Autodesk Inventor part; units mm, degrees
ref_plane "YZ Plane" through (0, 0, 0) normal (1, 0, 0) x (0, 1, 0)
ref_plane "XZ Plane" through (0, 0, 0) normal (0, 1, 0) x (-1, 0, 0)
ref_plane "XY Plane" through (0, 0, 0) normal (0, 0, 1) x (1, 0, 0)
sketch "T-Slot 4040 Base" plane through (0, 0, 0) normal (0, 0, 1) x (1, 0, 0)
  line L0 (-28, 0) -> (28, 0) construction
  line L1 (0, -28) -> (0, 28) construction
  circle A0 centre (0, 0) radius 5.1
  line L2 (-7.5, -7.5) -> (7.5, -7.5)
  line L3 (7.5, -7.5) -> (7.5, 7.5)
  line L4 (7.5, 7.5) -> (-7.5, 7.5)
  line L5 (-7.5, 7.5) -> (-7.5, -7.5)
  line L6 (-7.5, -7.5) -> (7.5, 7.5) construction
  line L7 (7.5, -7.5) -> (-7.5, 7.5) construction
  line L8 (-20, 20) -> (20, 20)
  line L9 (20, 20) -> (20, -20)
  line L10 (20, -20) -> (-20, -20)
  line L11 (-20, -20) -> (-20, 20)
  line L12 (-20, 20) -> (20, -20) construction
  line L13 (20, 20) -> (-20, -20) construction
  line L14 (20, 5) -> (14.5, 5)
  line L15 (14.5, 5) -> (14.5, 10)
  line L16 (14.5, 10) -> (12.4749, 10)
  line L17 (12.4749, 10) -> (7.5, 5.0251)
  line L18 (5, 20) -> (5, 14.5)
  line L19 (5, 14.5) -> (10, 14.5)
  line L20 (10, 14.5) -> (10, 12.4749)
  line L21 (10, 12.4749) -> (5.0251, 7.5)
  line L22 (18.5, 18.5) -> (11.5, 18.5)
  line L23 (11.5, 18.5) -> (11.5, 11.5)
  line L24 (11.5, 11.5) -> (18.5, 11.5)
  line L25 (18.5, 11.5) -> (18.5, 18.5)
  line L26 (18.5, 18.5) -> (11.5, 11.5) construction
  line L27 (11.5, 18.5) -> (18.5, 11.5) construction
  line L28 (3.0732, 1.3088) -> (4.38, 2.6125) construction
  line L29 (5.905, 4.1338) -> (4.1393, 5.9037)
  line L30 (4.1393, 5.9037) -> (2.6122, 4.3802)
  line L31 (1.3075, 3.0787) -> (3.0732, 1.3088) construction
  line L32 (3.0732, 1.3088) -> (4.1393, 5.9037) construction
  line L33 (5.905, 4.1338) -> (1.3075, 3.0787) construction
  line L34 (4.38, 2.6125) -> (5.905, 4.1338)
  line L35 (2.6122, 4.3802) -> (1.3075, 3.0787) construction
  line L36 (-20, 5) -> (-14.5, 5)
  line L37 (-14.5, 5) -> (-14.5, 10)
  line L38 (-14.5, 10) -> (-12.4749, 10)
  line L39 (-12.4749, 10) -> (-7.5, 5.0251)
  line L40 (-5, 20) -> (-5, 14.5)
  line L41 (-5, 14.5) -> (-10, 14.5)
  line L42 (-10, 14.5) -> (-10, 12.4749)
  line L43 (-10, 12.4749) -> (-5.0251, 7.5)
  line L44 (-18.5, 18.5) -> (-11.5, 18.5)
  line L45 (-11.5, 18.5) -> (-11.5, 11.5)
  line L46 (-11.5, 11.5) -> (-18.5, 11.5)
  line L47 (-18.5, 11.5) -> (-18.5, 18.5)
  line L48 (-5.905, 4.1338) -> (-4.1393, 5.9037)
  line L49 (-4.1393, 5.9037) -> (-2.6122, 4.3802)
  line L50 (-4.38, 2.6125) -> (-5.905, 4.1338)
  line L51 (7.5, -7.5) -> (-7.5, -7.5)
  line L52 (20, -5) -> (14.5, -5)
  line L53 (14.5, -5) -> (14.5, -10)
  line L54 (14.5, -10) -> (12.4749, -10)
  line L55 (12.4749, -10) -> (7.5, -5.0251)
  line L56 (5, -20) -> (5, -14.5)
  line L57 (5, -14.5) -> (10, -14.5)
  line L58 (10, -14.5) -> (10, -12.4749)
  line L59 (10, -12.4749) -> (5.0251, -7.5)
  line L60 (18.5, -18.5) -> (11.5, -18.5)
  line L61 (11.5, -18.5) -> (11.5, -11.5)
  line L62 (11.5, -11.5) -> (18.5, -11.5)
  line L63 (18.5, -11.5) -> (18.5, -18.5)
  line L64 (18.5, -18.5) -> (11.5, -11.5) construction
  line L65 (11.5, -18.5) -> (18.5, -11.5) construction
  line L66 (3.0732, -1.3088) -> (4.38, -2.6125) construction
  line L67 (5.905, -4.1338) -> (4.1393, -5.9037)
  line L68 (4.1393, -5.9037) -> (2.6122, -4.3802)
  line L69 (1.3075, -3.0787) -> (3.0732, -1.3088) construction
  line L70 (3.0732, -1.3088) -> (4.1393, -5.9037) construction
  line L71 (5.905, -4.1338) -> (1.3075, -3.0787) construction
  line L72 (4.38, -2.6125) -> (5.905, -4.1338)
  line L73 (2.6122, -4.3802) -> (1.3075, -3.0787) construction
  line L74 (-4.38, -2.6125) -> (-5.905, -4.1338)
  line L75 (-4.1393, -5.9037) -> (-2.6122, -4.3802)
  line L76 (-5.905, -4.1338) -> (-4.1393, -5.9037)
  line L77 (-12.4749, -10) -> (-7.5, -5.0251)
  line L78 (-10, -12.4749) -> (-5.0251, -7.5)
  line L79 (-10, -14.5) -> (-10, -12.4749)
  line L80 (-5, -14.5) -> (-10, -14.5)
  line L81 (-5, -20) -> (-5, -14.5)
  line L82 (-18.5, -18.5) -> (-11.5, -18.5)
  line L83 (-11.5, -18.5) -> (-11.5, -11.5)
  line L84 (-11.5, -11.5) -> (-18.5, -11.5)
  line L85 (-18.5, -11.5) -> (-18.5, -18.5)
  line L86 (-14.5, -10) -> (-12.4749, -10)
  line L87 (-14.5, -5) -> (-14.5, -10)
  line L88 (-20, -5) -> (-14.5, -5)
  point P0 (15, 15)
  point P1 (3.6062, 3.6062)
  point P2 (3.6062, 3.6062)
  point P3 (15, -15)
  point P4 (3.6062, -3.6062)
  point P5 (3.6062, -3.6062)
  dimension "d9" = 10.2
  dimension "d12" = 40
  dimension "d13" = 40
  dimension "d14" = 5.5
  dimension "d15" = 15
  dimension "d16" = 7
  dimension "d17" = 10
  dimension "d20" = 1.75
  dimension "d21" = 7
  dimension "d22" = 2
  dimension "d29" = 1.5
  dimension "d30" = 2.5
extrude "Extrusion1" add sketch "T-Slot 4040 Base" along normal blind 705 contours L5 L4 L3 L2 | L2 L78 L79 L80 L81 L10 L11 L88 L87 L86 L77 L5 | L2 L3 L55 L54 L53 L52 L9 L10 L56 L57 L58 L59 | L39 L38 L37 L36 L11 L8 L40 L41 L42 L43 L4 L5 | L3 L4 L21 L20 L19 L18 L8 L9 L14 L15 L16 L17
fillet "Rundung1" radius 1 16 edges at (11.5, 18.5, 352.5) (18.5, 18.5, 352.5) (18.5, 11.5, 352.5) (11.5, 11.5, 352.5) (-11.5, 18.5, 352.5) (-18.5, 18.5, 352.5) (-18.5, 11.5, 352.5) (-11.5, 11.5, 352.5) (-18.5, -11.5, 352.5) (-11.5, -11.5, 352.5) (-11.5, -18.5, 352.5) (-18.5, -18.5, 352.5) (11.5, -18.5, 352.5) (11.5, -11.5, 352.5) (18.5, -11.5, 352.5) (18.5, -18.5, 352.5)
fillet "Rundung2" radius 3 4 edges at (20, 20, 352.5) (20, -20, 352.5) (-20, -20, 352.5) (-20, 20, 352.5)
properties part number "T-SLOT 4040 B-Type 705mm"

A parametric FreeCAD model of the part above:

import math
import FreeCAD as App
import Part
import Sketcher

V = App.Vector
Q = App.Units.Quantity


def edges_at(feature, points):
    """Names of the edges that pass closest to the given points."""
    edges = feature.Shape.Edges
    near = lambda p: min(range(len(edges)), key=lambda i: edges[i].distToShape(Part.Vertex(*p))[0])
    return sorted({f"Edge{near(p) + 1}" for p in points})

doc = App.newDocument("Part")
params = doc.addObject("Spreadsheet::Sheet", "Params")
for row, (alias, value) in enumerate([
    ("sketch1_radius", "5.1 mm"),
    ("sketch1_width", "15 mm"),
    ("sketch1_width2", "7 mm"),
    ("sketch1_width3", "5.5 mm"),
    ("sketch1_length", "2.5 mm"),
    ("pad1_length", "705 mm"),
    ("fillet_radius", "1 mm"),
    ("fillet2_radius", "3 mm"),
], start=1):
    params.set(f"A{row}", alias)
    params.set(f"B{row}", "=" + value)
    params.setAlias(f"B{row}", alias)

body = doc.addObject("PartDesign::Body", "Body")

# Sketch on XY plane
sketch1 = doc.addObject("Sketcher::SketchObject", "Sketch")
body.addObject(sketch1)
sketch1.AttachmentSupport = (doc.XY_Plane, [""])
sketch1.MapMode = "FlatFace"
sketch1.addGeometry(Part.LineSegment(V(-7.5, 5, 0), V(-7.5, -5, 0)), False)
sketch1.addGeometry(Part.LineSegment(V(-7.5, -5, 0), V(-12.5, -10, 0)), False)
sketch1.addGeometry(Part.LineSegment(V(-12.5, -10, 0), V(-14.5, -10, 0)), False)
sketch1.addGeometry(Part.LineSegment(V(-14.5, -10, 0), V(-14.5, -5, 0)), False)
sketch1.addGeometry(Part.LineSegment(V(-14.5, -5, 0), V(-20, -5, 0)), False)
sketch1.addGeometry(Part.LineSegment(V(-20, -5, 0), V(-20, -20, 0)), False)
sketch1.addGeometry(Part.LineSegment(V(-20, -20, 0), V(-5, -20, 0)), False)
sketch1.addGeometry(Part.LineSegment(V(-5, -20, 0), V(-5, -14.5, 0)), False)
sketch1.addGeometry(Part.LineSegment(V(-5, -14.5, 0), V(-10, -14.5, 0)), False)
sketch1.addGeometry(Part.LineSegment(V(-10, -14.5, 0), V(-10, -12.5, 0)), False)
sketch1.addGeometry(Part.LineSegment(V(-10, -12.5, 0), V(-5, -7.5, 0)), False)
sketch1.addGeometry(Part.LineSegment(V(-5, -7.5, 0), V(5, -7.5, 0)), False)
sketch1.addGeometry(Part.LineSegment(V(5, -7.5, 0), V(10, -12.5, 0)), False)
sketch1.addGeometry(Part.LineSegment(V(10, -12.5, 0), V(10, -14.5, 0)), False)
sketch1.addGeometry(Part.LineSegment(V(10, -14.5, 0), V(5, -14.5, 0)), False)
sketch1.addGeometry(Part.LineSegment(V(5, -14.5, 0), V(5, -20, 0)), False)
sketch1.addGeometry(Part.LineSegment(V(5, -20, 0), V(20, -20, 0)), False)
sketch1.addGeometry(Part.LineSegment(V(20, -20, 0), V(20, -5, 0)), False)
sketch1.addGeometry(Part.LineSegment(V(20, -5, 0), V(14.5, -5, 0)), False)
sketch1.addGeometry(Part.LineSegment(V(14.5, -5, 0), V(14.5, -10, 0)), False)
sketch1.addGeometry(Part.LineSegment(V(14.5, -10, 0), V(12.5, -10, 0)), False)
sketch1.addGeometry(Part.LineSegment(V(12.5, -10, 0), V(7.5, -5, 0)), False)
sketch1.addGeometry(Part.LineSegment(V(7.5, -5, 0), V(7.5, 5, 0)), False)
sketch1.addGeometry(Part.LineSegment(V(7.5, 5, 0), V(12.5, 10, 0)), False)
sketch1.addGeometry(Part.LineSegment(V(12.5, 10, 0), V(14.5, 10, 0)), False)
sketch1.addGeometry(Part.LineSegment(V(14.5, 10, 0), V(14.5, 5, 0)), False)
sketch1.addGeometry(Part.LineSegment(V(14.5, 5, 0), V(20, 5, 0)), False)
sketch1.addGeometry(Part.LineSegment(V(20, 5, 0), V(20, 20, 0)), False)
sketch1.addGeometry(Part.LineSegment(V(20, 20, 0), V(5, 20, 0)), False)
sketch1.addGeometry(Part.LineSegment(V(5, 20, 0), V(5, 14.5, 0)), False)
sketch1.addGeometry(Part.LineSegment(V(5, 14.5, 0), V(10, 14.5, 0)), False)
sketch1.addGeometry(Part.LineSegment(V(10, 14.5, 0), V(10, 12.5, 0)), False)
sketch1.addGeometry(Part.LineSegment(V(10, 12.5, 0), V(5, 7.5, 0)), False)
sketch1.addGeometry(Part.LineSegment(V(5, 7.5, 0), V(-5, 7.5, 0)), False)
sketch1.addGeometry(Part.LineSegment(V(-5, 7.5, 0), V(-10, 12.5, 0)), False)
sketch1.addGeometry(Part.LineSegment(V(-10, 12.5, 0), V(-10, 14.5, 0)), False)
sketch1.addGeometry(Part.LineSegment(V(-10, 14.5, 0), V(-5, 14.5, 0)), False)
sketch1.addGeometry(Part.LineSegment(V(-5, 14.5, 0), V(-5, 20, 0)), False)
sketch1.addGeometry(Part.LineSegment(V(-5, 20, 0), V(-20, 20, 0)), False)
sketch1.addGeometry(Part.LineSegment(V(-20, 20, 0), V(-20, 5, 0)), False)
sketch1.addGeometry(Part.LineSegment(V(-20, 5, 0), V(-14.5, 5, 0)), False)
sketch1.addGeometry(Part.LineSegment(V(-14.5, 5, 0), V(-14.5, 10, 0)), False)
sketch1.addGeometry(Part.LineSegment(V(-14.5, 10, 0), V(-12.5, 10, 0)), False)
sketch1.addGeometry(Part.LineSegment(V(-12.5, 10, 0), V(-7.5, 5, 0)), False)
sketch1.addGeometry(Part.ArcOfCircle(Part.Circle(V(0, 0, 0), V(0, 0, 1), 5.1), math.radians(-31), math.radians(31)), False)
sketch1.addGeometry(Part.LineSegment(V(4.4, -2.6, 0), V(5.9, -4.1, 0)), False)
sketch1.addGeometry(Part.LineSegment(V(5.9, -4.1, 0), V(4.1, -5.9, 0)), False)
sketch1.addGeometry(Part.LineSegment(V(4.1, -5.9, 0), V(2.6, -4.4, 0)), False)
sketch1.addGeometry(Part.ArcOfCircle(Part.Circle(V(0, 0, 0), V(0, 0, 1), 5.1), math.radians(-121), math.radians(-59)), False)
sketch1.addGeometry(Part.LineSegment(V(-2.6, -4.4, 0), V(-4.1, -5.9, 0)), False)
sketch1.addGeometry(Part.LineSegment(V(-4.1, -5.9, 0), V(-5.9, -4.1, 0)), False)
sketch1.addGeometry(Part.LineSegment(V(-5.9, -4.1, 0), V(-4.4, -2.6, 0)), False)
sketch1.addGeometry(Part.ArcOfCircle(Part.Circle(V(0, 0, 0), V(0, 0, 1), 5.1), math.radians(149), math.radians(211)), False)
sketch1.addGeometry(Part.LineSegment(V(-4.4, 2.6, 0), V(-5.9, 4.1, 0)), False)
sketch1.addGeometry(Part.LineSegment(V(-5.9, 4.1, 0), V(-4.1, 5.9, 0)), False)
sketch1.addGeometry(Part.LineSegment(V(-4.1, 5.9, 0), V(-2.6, 4.4, 0)), False)
sketch1.addGeometry(Part.ArcOfCircle(Part.Circle(V(0, 0, 0), V(0, 0, 1), 5.1), math.radians(59), math.radians(121)), False)
sketch1.addGeometry(Part.LineSegment(V(2.6, 4.4, 0), V(4.1, 5.9, 0)), False)
sketch1.addGeometry(Part.LineSegment(V(4.1, 5.9, 0), V(5.9, 4.1, 0)), False)
sketch1.addGeometry(Part.LineSegment(V(5.9, 4.1, 0), V(4.4, 2.6, 0)), False)
sketch1.addGeometry(Part.LineSegment(V(-18.5, -11.5, 0), V(-11.5, -11.5, 0)), False)
sketch1.addGeometry(Part.LineSegment(V(-11.5, -11.5, 0), V(-11.5, -18.5, 0)), False)
sketch1.addGeometry(Part.LineSegment(V(-11.5, -18.5, 0), V(-18.5, -18.5, 0)), False)
sketch1.addGeometry(Part.LineSegment(V(-18.5, -18.5, 0), V(-18.5, -11.5, 0)), False)
sketch1.addGeometry(Part.LineSegment(V(-11.5, 18.5, 0), V(-11.5, 11.5, 0)), False)
sketch1.addGeometry(Part.LineSegment(V(-11.5, 11.5, 0), V(-18.5, 11.5, 0)), False)
sketch1.addGeometry(Part.LineSegment(V(-18.5, 11.5, 0), V(-18.5, 18.5, 0)), False)
sketch1.addGeometry(Part.LineSegment(V(-18.5, 18.5, 0), V(-11.5, 18.5, 0)), False)
sketch1.addGeometry(Part.LineSegment(V(18.5, 11.5, 0), V(11.5, 11.5, 0)), False)
sketch1.addGeometry(Part.LineSegment(V(11.5, 11.5, 0), V(11.5, 18.5, 0)), False)
sketch1.addGeometry(Part.LineSegment(V(11.5, 18.5, 0), V(18.5, 18.5, 0)), False)
sketch1.addGeometry(Part.LineSegment(V(18.5, 18.5, 0), V(18.5, 11.5, 0)), False)
sketch1.addGeometry(Part.LineSegment(V(11.5, -18.5, 0), V(11.5, -11.5, 0)), False)
sketch1.addGeometry(Part.LineSegment(V(11.5, -11.5, 0), V(18.5, -11.5, 0)), False)
sketch1.addGeometry(Part.LineSegment(V(18.5, -11.5, 0), V(18.5, -18.5, 0)), False)
sketch1.addGeometry(Part.LineSegment(V(18.5, -18.5, 0), V(11.5, -18.5, 0)), False)
sketch1.addConstraint(Sketcher.Constraint("Coincident", 0, 2, 1, 1))
sketch1.addConstraint(Sketcher.Constraint("Coincident", 1, 2, 2, 1))
sketch1.addConstraint(Sketcher.Constraint("Coincident", 2, 2, 3, 1))
sketch1.addConstraint(Sketcher.Constraint("Coincident", 3, 2, 4, 1))
sketch1.addConstraint(Sketcher.Constraint("Coincident", 4, 2, 5, 1))
sketch1.addConstraint(Sketcher.Constraint("Coincident", 5, 2, 6, 1))
sketch1.addConstraint(Sketcher.Constraint("Coincident", 6, 2, 7, 1))
sketch1.addConstraint(Sketcher.Constraint("Coincident", 7, 2, 8, 1))
sketch1.addConstraint(Sketcher.Constraint("Coincident", 8, 2, 9, 1))
sketch1.addConstraint(Sketcher.Constraint("Coincident", 9, 2, 10, 1))
sketch1.addConstraint(Sketcher.Constraint("Coincident", 10, 2, 11, 1))
sketch1.addConstraint(Sketcher.Constraint("Coincident", 11, 2, 12, 1))
sketch1.addConstraint(Sketcher.Constraint("Coincident", 12, 2, 13, 1))
sketch1.addConstraint(Sketcher.Constraint("Coincident", 13, 2, 14, 1))
sketch1.addConstraint(Sketcher.Constraint("Coincident", 14, 2, 15, 1))
sketch1.addConstraint(Sketcher.Constraint("Coincident", 15, 2, 16, 1))
sketch1.addConstraint(Sketcher.Constraint("Coincident", 16, 2, 17, 1))
sketch1.addConstraint(Sketcher.Constraint("Coincident", 17, 2, 18, 1))
sketch1.addConstraint(Sketcher.Constraint("Coincident", 18, 2, 19, 1))
sketch1.addConstraint(Sketcher.Constraint("Coincident", 19, 2, 20, 1))
sketch1.addConstraint(Sketcher.Constraint("Coincident", 20, 2, 21, 1))
sketch1.addConstraint(Sketcher.Constraint("Coincident", 21, 2, 22, 1))
sketch1.addConstraint(Sketcher.Constraint("Coincident", 22, 2, 23, 1))
sketch1.addConstraint(Sketcher.Constraint("Coincident", 23, 2, 24, 1))
sketch1.addConstraint(Sketcher.Constraint("Coincident", 24, 2, 25, 1))
sketch1.addConstraint(Sketcher.Constraint("Coincident", 25, 2, 26, 1))
sketch1.addConstraint(Sketcher.Constraint("Coincident", 26, 2, 27, 1))
sketch1.addConstraint(Sketcher.Constraint("Coincident", 27, 2, 28, 1))
sketch1.addConstraint(Sketcher.Constraint("Coincident", 28, 2, 29, 1))
sketch1.addConstraint(Sketcher.Constraint("Coincident", 29, 2, 30, 1))
sketch1.addConstraint(Sketcher.Constraint("Coincident", 30, 2, 31, 1))
sketch1.addConstraint(Sketcher.Constraint("Coincident", 31, 2, 32, 1))
sketch1.addConstraint(Sketcher.Constraint("Coincident", 32, 2, 33, 1))
sketch1.addConstraint(Sketcher.Constraint("Coincident", 33, 2, 34, 1))
sketch1.addConstraint(Sketcher.Constraint("Coincident", 34, 2, 35, 1))
sketch1.addConstraint(Sketcher.Constraint("Coincident", 35, 2, 36, 1))
sketch1.addConstraint(Sketcher.Constraint("Coincident", 36, 2, 37, 1))
sketch1.addConstraint(Sketcher.Constraint("Coincident", 37, 2, 38, 1))
sketch1.addConstraint(Sketcher.Constraint("Coincident", 38, 2, 39, 1))
sketch1.addConstraint(Sketcher.Constraint("Coincident", 39, 2, 40, 1))
sketch1.addConstraint(Sketcher.Constraint("Coincident", 40, 2, 41, 1))
sketch1.addConstraint(Sketcher.Constraint("Coincident", 41, 2, 42, 1))
sketch1.addConstraint(Sketcher.Constraint("Coincident", 42, 2, 43, 1))
sketch1.addConstraint(Sketcher.Constraint("Coincident", 43, 2, 0, 1))
sketch1.addConstraint(Sketcher.Constraint("Coincident", 44, 1, 45, 1))
sketch1.addConstraint(Sketcher.Constraint("Coincident", 45, 2, 46, 1))
sketch1.addConstraint(Sketcher.Constraint("Coincident", 46, 2, 47, 1))
sketch1.addConstraint(Sketcher.Constraint("Coincident", 47, 2, 48, 2))
sketch1.addConstraint(Sketcher.Constraint("Coincident", 48, 1, 49, 1))
sketch1.addConstraint(Sketcher.Constraint("Coincident", 49, 2, 50, 1))
sketch1.addConstraint(Sketcher.Constraint("Coincident", 50, 2, 51, 1))
sketch1.addConstraint(Sketcher.Constraint("Coincident", 51, 2, 52, 2))
sketch1.addConstraint(Sketcher.Constraint("Coincident", 52, 1, 53, 1))
sketch1.addConstraint(Sketcher.Constraint("Coincident", 53, 2, 54, 1))
sketch1.addConstraint(Sketcher.Constraint("Coincident", 54, 2, 55, 1))
sketch1.addConstraint(Sketcher.Constraint("Coincident", 55, 2, 56, 2))
sketch1.addConstraint(Sketcher.Constraint("Coincident", 56, 1, 57, 1))
sketch1.addConstraint(Sketcher.Constraint("Coincident", 57, 2, 58, 1))
sketch1.addConstraint(Sketcher.Constraint("Coincident", 58, 2, 59, 1))
sketch1.addConstraint(Sketcher.Constraint("Coincident", 59, 2, 44, 2))
sketch1.addConstraint(Sketcher.Constraint("Coincident", 60, 2, 61, 1))
sketch1.addConstraint(Sketcher.Constraint("Coincident", 61, 2, 62, 1))
sketch1.addConstraint(Sketcher.Constraint("Coincident", 62, 2, 63, 1))
sketch1.addConstraint(Sketcher.Constraint("Coincident", 63, 2, 60, 1))
sketch1.addConstraint(Sketcher.Constraint("Coincident", 64, 2, 65, 1))
sketch1.addConstraint(Sketcher.Constraint("Coincident", 65, 2, 66, 1))
sketch1.addConstraint(Sketcher.Constraint("Coincident", 66, 2, 67, 1))
sketch1.addConstraint(Sketcher.Constraint("Coincident", 67, 2, 64, 1))
sketch1.addConstraint(Sketcher.Constraint("Coincident", 68, 2, 69, 1))
sketch1.addConstraint(Sketcher.Constraint("Coincident", 69, 2, 70, 1))
sketch1.addConstraint(Sketcher.Constraint("Coincident", 70, 2, 71, 1))
sketch1.addConstraint(Sketcher.Constraint("Coincident", 71, 2, 68, 1))
sketch1.addConstraint(Sketcher.Constraint("Coincident", 72, 2, 73, 1))
sketch1.addConstraint(Sketcher.Constraint("Coincident", 73, 2, 74, 1))
sketch1.addConstraint(Sketcher.Constraint("Coincident", 74, 2, 75, 1))
sketch1.addConstraint(Sketcher.Constraint("Coincident", 75, 2, 72, 1))
sketch1.addConstraint(Sketcher.Constraint("Vertical", 0))
sketch1.addConstraint(Sketcher.Constraint("Horizontal", 2))
sketch1.addConstraint(Sketcher.Constraint("Vertical", 3))
sketch1.addConstraint(Sketcher.Constraint("Horizontal", 4))
sketch1.addConstraint(Sketcher.Constraint("Vertical", 5))
sketch1.addConstraint(Sketcher.Constraint("Horizontal", 6))
sketch1.addConstraint(Sketcher.Constraint("Vertical", 7))
sketch1.addConstraint(Sketcher.Constraint("Horizontal", 8))
sketch1.addConstraint(Sketcher.Constraint("Vertical", 9))
sketch1.addConstraint(Sketcher.Constraint("Horizontal", 11))
sketch1.addConstraint(Sketcher.Constraint("Vertical", 13))
sketch1.addConstraint(Sketcher.Constraint("Horizontal", 14))
sketch1.addConstraint(Sketcher.Constraint("Vertical", 15))
sketch1.addConstraint(Sketcher.Constraint("Horizontal", 16))
sketch1.addConstraint(Sketcher.Constraint("Vertical", 17))
sketch1.addConstraint(Sketcher.Constraint("Horizontal", 18))
sketch1.addConstraint(Sketcher.Constraint("Vertical", 19))
sketch1.addConstraint(Sketcher.Constraint("Horizontal", 20))
sketch1.addConstraint(Sketcher.Constraint("Vertical", 22))
sketch1.addConstraint(Sketcher.Constraint("Horizontal", 24))
sketch1.addConstraint(Sketcher.Constraint("Vertical", 25))
sketch1.addConstraint(Sketcher.Constraint("Horizontal", 26))
sketch1.addConstraint(Sketcher.Constraint("Vertical", 27))
sketch1.addConstraint(Sketcher.Constraint("Horizontal", 28))
sketch1.addConstraint(Sketcher.Constraint("Vertical", 29))
sketch1.addConstraint(Sketcher.Constraint("Horizontal", 30))
sketch1.addConstraint(Sketcher.Constraint("Vertical", 31))
sketch1.addConstraint(Sketcher.Constraint("Horizontal", 33))
sketch1.addConstraint(Sketcher.Constraint("Vertical", 35))
sketch1.addConstraint(Sketcher.Constraint("Horizontal", 36))
sketch1.addConstraint(Sketcher.Constraint("Vertical", 37))
sketch1.addConstraint(Sketcher.Constraint("Horizontal", 38))
sketch1.addConstraint(Sketcher.Constraint("Vertical", 39))
sketch1.addConstraint(Sketcher.Constraint("Horizontal", 40))
sketch1.addConstraint(Sketcher.Constraint("Vertical", 41))
sketch1.addConstraint(Sketcher.Constraint("Horizontal", 42))
sketch1.addConstraint(Sketcher.Constraint("Horizontal", 60))
sketch1.addConstraint(Sketcher.Constraint("Vertical", 61))
sketch1.addConstraint(Sketcher.Constraint("Horizontal", 62))
sketch1.addConstraint(Sketcher.Constraint("Vertical", 63))
sketch1.addConstraint(Sketcher.Constraint("Vertical", 64))
sketch1.addConstraint(Sketcher.Constraint("Horizontal", 65))
sketch1.addConstraint(Sketcher.Constraint("Vertical", 66))
sketch1.addConstraint(Sketcher.Constraint("Horizontal", 67))
sketch1.addConstraint(Sketcher.Constraint("Horizontal", 68))
sketch1.addConstraint(Sketcher.Constraint("Vertical", 69))
sketch1.addConstraint(Sketcher.Constraint("Horizontal", 70))
sketch1.addConstraint(Sketcher.Constraint("Vertical", 71))
sketch1.addConstraint(Sketcher.Constraint("Vertical", 72))
sketch1.addConstraint(Sketcher.Constraint("Horizontal", 73))
sketch1.addConstraint(Sketcher.Constraint("Vertical", 74))
sketch1.addConstraint(Sketcher.Constraint("Horizontal", 75))
sketch1.addConstraint(Sketcher.Constraint("Coincident", 44, 3, -1, 1))
sketch1.addConstraint(Sketcher.Constraint("Coincident", 48, 3, -1, 1))
sketch1.addConstraint(Sketcher.Constraint("Coincident", 52, 3, -1, 1))
sketch1.addConstraint(Sketcher.Constraint("Coincident", 56, 3, -1, 1))
sketch1.addConstraint(Sketcher.Constraint("Equal", 44, 48))
sketch1.addConstraint(Sketcher.Constraint("Equal", 48, 52))
sketch1.addConstraint(Sketcher.Constraint("Equal", 52, 56))
sketch1.addConstraint(Sketcher.Constraint("Symmetric", 0, 2, 22, 2, -1, 1))
sketch1.addConstraint(Sketcher.Constraint("Symmetric", 1, 2, 23, 2, -1, 1))
sketch1.addConstraint(Sketcher.Constraint("Symmetric", 3, 2, 25, 2, -1, 1))
sketch1.addConstraint(Sketcher.Constraint("Symmetric", 5, 2, 27, 2, -1, 1))
sketch1.addConstraint(Sketcher.Constraint("Symmetric", 7, 2, 29, 2, -1, 1))
sketch1.addConstraint(Sketcher.Constraint("Symmetric", 9, 2, 31, 2, -1, 1))
sketch1.addConstraint(Sketcher.Constraint("Symmetric", 10, 2, 32, 2, -1, 1))
sketch1.addConstraint(Sketcher.Constraint("Symmetric", 12, 2, 34, 2, -1, 1))
sketch1.addConstraint(Sketcher.Constraint("Symmetric", 14, 2, 36, 2, -1, 1))
sketch1.addConstraint(Sketcher.Constraint("Symmetric", 16, 2, 38, 2, -1, 1))
sketch1.addConstraint(Sketcher.Constraint("Symmetric", 18, 2, 40, 2, -1, 1))
sketch1.addConstraint(Sketcher.Constraint("Symmetric", 20, 2, 42, 2, -1, 1))
sketch1.addConstraint(Sketcher.Constraint("Symmetric", 45, 2, 53, 2, -1, 1))
sketch1.addConstraint(Sketcher.Constraint("Symmetric", 46, 2, 54, 2, -1, 1))
sketch1.addConstraint(Sketcher.Constraint("Symmetric", 49, 2, 57, 2, -1, 1))
sketch1.addConstraint(Sketcher.Constraint("Symmetric", 50, 2, 58, 2, -1, 1))
sketch1.addConstraint(Sketcher.Constraint("Symmetric", 60, 2, 68, 2, -1, 1))
sketch1.addConstraint(Sketcher.Constraint("Symmetric", 62, 2, 70, 2, -1, 1))
sketch1.addConstraint(Sketcher.Constraint("Symmetric", 64, 2, 72, 2, -1, 1))
sketch1.addConstraint(Sketcher.Constraint("Symmetric", 66, 2, 74, 2, -1, 1))
sketch1.addConstraint(Sketcher.Constraint("Symmetric", 9, 2, 12, 2, -2))
sketch1.addConstraint(Sketcher.Constraint("Symmetric", 7, 2, 14, 2, -2))
sketch1.addConstraint(Sketcher.Constraint("Symmetric", 5, 2, 16, 2, -2))
sketch1.addConstraint(Sketcher.Constraint("Symmetric", 3, 2, 18, 2, -2))
sketch1.addConstraint(Sketcher.Constraint("Symmetric", 1, 2, 20, 2, -2))
sketch1.addConstraint(Sketcher.Constraint("Symmetric", 46, 2, 49, 2, -2))
sketch1.addConstraint(Sketcher.Constraint("Symmetric", 45, 2, 50, 2, -2))
sketch1.addConstraint(Sketcher.Constraint("Symmetric", 64, 2, 68, 2, -2))
sketch1.addConstraint(Sketcher.Constraint("Symmetric", 66, 2, 70, 2, -2))
sketch1.addConstraint(Sketcher.Constraint("Parallel", 1, 10))
sketch1.addConstraint(Sketcher.Constraint("Perpendicular", 10, 12))
sketch1.addConstraint(Sketcher.Constraint("Parallel", 12, 21))
sketch1.addConstraint(Sketcher.Constraint("Perpendicular", 32, 34))
sketch1.addConstraint(Sketcher.Constraint("Parallel", 34, 43))
sketch1.addConstraint(Sketcher.Constraint("Perpendicular", 45, 46))
sketch1.addConstraint(Sketcher.Constraint("Perpendicular", 46, 47))
sketch1.addConstraint(Sketcher.Constraint("Perpendicular", 49, 50))
sketch1.addConstraint(Sketcher.Constraint("Perpendicular", 50, 51))
sketch1.addConstraint(Sketcher.Constraint("Parallel", 47, 53))
sketch1.addConstraint(Sketcher.Constraint("Perpendicular", 54, 55))
sketch1.addConstraint(Sketcher.Constraint("Parallel", 51, 57))
sketch1.addConstraint(Sketcher.Constraint("Perpendicular", 58, 59))
sketch1.addConstraint(Sketcher.Constraint("Horizontal", 0, 2, 21, 2))
sketch1.addConstraint(Sketcher.Constraint("Equal", 33, 0))
sketch1.addConstraint(Sketcher.Constraint("Equal", 36, 3))
sketch1.addConstraint(Sketcher.Constraint("Equal", 38, 5))
sketch1.addConstraint(Sketcher.Constraint("Equal", 40, 7))
sketch1.addConstraint(Sketcher.Constraint("Equal", 42, 9))
sketch1.addConstraint(Sketcher.Constraint("Equal", 75, 61))
sketch1.addConstraint(Sketcher.Constraint("Equal", 1, 10))
sketch1.addConstraint(Sketcher.Constraint("Radius", 44, 5.1))
sketch1.addConstraint(Sketcher.Constraint("DistanceX", 6, 1, 6, 2, 15.0))
sketch1.addConstraint(Sketcher.Constraint("DistanceX", 60, 1, 60, 2, 7.0))
sketch1.addConstraint(Sketcher.Constraint("DistanceX", 4, 2, 4, 1, 5.5))
sketch1.addConstraint(Sketcher.Constraint("DistanceY", 1, 2, -1, 1, 10.0))
sketch1.addConstraint(Sketcher.Constraint("Distance", 46, 2.5))
sketch1.addConstraint(Sketcher.Constraint("DistanceX", 8, 2, 8, 1, 5.0))
sketch1.addConstraint(Sketcher.Constraint("DistanceX", 0, 2, -1, 1, 7.5))
sketch1.addConstraint(Sketcher.Constraint("DistanceX", 60, 2, -1, 1, 11.5))
sketch1.addConstraint(Sketcher.Constraint("DistanceY", 60, 2, -1, 1, 11.5))
sketch1.addConstraint(Sketcher.Constraint("Angle", 45, Q("-44.9304 deg")))
sketch1.addConstraint(Sketcher.Constraint("DistanceX", 2, 2, 2, 1, 2.025))
sketch1.addConstraint(Sketcher.Constraint("DistanceX", -1, 1, 44, 1, 4.38))
sketch1.addConstraint(Sketcher.Constraint("Distance", 45, 2.154))
sketch1.setExpression("Constraints[185]", "Params.sketch1_radius")
sketch1.setExpression("Constraints[186]", "Params.sketch1_width")
sketch1.setExpression("Constraints[187]", "Params.sketch1_width2")
sketch1.setExpression("Constraints[188]", "Params.sketch1_width3")
sketch1.setExpression("Constraints[190]", "Params.sketch1_length")
pad1 = doc.addObject("PartDesign::Pad", "Pad")
body.addObject(pad1)
pad1.Profile = sketch1
pad1.setExpression("Length", "Params.pad1_length")
doc.recompute()

fillet = doc.addObject("PartDesign::Fillet", "Fillet")
body.addObject(fillet)
fillet.Base = (pad1, edges_at(pad1, [
    (11.5, 18.5, 352.5),
    (18.5, 18.5, 352.5),
    (18.5, 11.5, 352.5),
    (11.5, 11.5, 352.5),
    (-11.5, 18.5, 352.5),
    (-18.5, 18.5, 352.5),
    (-18.5, 11.5, 352.5),
    (-11.5, 11.5, 352.5),
    (-18.5, -11.5, 352.5),
    (-11.5, -11.5, 352.5),
    (-11.5, -18.5, 352.5),
    (-18.5, -18.5, 352.5),
    (11.5, -18.5, 352.5),
    (11.5, -11.5, 352.5),
    (18.5, -11.5, 352.5),
    (18.5, -18.5, 352.5),
]))
fillet.setExpression("Radius", "Params.fillet_radius")
doc.recompute()

fillet2 = doc.addObject("PartDesign::Fillet", "Fillet001")
body.addObject(fillet2)
fillet2.Base = (fillet, edges_at(fillet, [
    (20, 20, 352.5),
    (20, -20, 352.5),
    (-20, -20, 352.5),
    (-20, 20, 352.5),
]))
fillet2.setExpression("Radius", "Params.fillet2_radius")

doc.recompute()
